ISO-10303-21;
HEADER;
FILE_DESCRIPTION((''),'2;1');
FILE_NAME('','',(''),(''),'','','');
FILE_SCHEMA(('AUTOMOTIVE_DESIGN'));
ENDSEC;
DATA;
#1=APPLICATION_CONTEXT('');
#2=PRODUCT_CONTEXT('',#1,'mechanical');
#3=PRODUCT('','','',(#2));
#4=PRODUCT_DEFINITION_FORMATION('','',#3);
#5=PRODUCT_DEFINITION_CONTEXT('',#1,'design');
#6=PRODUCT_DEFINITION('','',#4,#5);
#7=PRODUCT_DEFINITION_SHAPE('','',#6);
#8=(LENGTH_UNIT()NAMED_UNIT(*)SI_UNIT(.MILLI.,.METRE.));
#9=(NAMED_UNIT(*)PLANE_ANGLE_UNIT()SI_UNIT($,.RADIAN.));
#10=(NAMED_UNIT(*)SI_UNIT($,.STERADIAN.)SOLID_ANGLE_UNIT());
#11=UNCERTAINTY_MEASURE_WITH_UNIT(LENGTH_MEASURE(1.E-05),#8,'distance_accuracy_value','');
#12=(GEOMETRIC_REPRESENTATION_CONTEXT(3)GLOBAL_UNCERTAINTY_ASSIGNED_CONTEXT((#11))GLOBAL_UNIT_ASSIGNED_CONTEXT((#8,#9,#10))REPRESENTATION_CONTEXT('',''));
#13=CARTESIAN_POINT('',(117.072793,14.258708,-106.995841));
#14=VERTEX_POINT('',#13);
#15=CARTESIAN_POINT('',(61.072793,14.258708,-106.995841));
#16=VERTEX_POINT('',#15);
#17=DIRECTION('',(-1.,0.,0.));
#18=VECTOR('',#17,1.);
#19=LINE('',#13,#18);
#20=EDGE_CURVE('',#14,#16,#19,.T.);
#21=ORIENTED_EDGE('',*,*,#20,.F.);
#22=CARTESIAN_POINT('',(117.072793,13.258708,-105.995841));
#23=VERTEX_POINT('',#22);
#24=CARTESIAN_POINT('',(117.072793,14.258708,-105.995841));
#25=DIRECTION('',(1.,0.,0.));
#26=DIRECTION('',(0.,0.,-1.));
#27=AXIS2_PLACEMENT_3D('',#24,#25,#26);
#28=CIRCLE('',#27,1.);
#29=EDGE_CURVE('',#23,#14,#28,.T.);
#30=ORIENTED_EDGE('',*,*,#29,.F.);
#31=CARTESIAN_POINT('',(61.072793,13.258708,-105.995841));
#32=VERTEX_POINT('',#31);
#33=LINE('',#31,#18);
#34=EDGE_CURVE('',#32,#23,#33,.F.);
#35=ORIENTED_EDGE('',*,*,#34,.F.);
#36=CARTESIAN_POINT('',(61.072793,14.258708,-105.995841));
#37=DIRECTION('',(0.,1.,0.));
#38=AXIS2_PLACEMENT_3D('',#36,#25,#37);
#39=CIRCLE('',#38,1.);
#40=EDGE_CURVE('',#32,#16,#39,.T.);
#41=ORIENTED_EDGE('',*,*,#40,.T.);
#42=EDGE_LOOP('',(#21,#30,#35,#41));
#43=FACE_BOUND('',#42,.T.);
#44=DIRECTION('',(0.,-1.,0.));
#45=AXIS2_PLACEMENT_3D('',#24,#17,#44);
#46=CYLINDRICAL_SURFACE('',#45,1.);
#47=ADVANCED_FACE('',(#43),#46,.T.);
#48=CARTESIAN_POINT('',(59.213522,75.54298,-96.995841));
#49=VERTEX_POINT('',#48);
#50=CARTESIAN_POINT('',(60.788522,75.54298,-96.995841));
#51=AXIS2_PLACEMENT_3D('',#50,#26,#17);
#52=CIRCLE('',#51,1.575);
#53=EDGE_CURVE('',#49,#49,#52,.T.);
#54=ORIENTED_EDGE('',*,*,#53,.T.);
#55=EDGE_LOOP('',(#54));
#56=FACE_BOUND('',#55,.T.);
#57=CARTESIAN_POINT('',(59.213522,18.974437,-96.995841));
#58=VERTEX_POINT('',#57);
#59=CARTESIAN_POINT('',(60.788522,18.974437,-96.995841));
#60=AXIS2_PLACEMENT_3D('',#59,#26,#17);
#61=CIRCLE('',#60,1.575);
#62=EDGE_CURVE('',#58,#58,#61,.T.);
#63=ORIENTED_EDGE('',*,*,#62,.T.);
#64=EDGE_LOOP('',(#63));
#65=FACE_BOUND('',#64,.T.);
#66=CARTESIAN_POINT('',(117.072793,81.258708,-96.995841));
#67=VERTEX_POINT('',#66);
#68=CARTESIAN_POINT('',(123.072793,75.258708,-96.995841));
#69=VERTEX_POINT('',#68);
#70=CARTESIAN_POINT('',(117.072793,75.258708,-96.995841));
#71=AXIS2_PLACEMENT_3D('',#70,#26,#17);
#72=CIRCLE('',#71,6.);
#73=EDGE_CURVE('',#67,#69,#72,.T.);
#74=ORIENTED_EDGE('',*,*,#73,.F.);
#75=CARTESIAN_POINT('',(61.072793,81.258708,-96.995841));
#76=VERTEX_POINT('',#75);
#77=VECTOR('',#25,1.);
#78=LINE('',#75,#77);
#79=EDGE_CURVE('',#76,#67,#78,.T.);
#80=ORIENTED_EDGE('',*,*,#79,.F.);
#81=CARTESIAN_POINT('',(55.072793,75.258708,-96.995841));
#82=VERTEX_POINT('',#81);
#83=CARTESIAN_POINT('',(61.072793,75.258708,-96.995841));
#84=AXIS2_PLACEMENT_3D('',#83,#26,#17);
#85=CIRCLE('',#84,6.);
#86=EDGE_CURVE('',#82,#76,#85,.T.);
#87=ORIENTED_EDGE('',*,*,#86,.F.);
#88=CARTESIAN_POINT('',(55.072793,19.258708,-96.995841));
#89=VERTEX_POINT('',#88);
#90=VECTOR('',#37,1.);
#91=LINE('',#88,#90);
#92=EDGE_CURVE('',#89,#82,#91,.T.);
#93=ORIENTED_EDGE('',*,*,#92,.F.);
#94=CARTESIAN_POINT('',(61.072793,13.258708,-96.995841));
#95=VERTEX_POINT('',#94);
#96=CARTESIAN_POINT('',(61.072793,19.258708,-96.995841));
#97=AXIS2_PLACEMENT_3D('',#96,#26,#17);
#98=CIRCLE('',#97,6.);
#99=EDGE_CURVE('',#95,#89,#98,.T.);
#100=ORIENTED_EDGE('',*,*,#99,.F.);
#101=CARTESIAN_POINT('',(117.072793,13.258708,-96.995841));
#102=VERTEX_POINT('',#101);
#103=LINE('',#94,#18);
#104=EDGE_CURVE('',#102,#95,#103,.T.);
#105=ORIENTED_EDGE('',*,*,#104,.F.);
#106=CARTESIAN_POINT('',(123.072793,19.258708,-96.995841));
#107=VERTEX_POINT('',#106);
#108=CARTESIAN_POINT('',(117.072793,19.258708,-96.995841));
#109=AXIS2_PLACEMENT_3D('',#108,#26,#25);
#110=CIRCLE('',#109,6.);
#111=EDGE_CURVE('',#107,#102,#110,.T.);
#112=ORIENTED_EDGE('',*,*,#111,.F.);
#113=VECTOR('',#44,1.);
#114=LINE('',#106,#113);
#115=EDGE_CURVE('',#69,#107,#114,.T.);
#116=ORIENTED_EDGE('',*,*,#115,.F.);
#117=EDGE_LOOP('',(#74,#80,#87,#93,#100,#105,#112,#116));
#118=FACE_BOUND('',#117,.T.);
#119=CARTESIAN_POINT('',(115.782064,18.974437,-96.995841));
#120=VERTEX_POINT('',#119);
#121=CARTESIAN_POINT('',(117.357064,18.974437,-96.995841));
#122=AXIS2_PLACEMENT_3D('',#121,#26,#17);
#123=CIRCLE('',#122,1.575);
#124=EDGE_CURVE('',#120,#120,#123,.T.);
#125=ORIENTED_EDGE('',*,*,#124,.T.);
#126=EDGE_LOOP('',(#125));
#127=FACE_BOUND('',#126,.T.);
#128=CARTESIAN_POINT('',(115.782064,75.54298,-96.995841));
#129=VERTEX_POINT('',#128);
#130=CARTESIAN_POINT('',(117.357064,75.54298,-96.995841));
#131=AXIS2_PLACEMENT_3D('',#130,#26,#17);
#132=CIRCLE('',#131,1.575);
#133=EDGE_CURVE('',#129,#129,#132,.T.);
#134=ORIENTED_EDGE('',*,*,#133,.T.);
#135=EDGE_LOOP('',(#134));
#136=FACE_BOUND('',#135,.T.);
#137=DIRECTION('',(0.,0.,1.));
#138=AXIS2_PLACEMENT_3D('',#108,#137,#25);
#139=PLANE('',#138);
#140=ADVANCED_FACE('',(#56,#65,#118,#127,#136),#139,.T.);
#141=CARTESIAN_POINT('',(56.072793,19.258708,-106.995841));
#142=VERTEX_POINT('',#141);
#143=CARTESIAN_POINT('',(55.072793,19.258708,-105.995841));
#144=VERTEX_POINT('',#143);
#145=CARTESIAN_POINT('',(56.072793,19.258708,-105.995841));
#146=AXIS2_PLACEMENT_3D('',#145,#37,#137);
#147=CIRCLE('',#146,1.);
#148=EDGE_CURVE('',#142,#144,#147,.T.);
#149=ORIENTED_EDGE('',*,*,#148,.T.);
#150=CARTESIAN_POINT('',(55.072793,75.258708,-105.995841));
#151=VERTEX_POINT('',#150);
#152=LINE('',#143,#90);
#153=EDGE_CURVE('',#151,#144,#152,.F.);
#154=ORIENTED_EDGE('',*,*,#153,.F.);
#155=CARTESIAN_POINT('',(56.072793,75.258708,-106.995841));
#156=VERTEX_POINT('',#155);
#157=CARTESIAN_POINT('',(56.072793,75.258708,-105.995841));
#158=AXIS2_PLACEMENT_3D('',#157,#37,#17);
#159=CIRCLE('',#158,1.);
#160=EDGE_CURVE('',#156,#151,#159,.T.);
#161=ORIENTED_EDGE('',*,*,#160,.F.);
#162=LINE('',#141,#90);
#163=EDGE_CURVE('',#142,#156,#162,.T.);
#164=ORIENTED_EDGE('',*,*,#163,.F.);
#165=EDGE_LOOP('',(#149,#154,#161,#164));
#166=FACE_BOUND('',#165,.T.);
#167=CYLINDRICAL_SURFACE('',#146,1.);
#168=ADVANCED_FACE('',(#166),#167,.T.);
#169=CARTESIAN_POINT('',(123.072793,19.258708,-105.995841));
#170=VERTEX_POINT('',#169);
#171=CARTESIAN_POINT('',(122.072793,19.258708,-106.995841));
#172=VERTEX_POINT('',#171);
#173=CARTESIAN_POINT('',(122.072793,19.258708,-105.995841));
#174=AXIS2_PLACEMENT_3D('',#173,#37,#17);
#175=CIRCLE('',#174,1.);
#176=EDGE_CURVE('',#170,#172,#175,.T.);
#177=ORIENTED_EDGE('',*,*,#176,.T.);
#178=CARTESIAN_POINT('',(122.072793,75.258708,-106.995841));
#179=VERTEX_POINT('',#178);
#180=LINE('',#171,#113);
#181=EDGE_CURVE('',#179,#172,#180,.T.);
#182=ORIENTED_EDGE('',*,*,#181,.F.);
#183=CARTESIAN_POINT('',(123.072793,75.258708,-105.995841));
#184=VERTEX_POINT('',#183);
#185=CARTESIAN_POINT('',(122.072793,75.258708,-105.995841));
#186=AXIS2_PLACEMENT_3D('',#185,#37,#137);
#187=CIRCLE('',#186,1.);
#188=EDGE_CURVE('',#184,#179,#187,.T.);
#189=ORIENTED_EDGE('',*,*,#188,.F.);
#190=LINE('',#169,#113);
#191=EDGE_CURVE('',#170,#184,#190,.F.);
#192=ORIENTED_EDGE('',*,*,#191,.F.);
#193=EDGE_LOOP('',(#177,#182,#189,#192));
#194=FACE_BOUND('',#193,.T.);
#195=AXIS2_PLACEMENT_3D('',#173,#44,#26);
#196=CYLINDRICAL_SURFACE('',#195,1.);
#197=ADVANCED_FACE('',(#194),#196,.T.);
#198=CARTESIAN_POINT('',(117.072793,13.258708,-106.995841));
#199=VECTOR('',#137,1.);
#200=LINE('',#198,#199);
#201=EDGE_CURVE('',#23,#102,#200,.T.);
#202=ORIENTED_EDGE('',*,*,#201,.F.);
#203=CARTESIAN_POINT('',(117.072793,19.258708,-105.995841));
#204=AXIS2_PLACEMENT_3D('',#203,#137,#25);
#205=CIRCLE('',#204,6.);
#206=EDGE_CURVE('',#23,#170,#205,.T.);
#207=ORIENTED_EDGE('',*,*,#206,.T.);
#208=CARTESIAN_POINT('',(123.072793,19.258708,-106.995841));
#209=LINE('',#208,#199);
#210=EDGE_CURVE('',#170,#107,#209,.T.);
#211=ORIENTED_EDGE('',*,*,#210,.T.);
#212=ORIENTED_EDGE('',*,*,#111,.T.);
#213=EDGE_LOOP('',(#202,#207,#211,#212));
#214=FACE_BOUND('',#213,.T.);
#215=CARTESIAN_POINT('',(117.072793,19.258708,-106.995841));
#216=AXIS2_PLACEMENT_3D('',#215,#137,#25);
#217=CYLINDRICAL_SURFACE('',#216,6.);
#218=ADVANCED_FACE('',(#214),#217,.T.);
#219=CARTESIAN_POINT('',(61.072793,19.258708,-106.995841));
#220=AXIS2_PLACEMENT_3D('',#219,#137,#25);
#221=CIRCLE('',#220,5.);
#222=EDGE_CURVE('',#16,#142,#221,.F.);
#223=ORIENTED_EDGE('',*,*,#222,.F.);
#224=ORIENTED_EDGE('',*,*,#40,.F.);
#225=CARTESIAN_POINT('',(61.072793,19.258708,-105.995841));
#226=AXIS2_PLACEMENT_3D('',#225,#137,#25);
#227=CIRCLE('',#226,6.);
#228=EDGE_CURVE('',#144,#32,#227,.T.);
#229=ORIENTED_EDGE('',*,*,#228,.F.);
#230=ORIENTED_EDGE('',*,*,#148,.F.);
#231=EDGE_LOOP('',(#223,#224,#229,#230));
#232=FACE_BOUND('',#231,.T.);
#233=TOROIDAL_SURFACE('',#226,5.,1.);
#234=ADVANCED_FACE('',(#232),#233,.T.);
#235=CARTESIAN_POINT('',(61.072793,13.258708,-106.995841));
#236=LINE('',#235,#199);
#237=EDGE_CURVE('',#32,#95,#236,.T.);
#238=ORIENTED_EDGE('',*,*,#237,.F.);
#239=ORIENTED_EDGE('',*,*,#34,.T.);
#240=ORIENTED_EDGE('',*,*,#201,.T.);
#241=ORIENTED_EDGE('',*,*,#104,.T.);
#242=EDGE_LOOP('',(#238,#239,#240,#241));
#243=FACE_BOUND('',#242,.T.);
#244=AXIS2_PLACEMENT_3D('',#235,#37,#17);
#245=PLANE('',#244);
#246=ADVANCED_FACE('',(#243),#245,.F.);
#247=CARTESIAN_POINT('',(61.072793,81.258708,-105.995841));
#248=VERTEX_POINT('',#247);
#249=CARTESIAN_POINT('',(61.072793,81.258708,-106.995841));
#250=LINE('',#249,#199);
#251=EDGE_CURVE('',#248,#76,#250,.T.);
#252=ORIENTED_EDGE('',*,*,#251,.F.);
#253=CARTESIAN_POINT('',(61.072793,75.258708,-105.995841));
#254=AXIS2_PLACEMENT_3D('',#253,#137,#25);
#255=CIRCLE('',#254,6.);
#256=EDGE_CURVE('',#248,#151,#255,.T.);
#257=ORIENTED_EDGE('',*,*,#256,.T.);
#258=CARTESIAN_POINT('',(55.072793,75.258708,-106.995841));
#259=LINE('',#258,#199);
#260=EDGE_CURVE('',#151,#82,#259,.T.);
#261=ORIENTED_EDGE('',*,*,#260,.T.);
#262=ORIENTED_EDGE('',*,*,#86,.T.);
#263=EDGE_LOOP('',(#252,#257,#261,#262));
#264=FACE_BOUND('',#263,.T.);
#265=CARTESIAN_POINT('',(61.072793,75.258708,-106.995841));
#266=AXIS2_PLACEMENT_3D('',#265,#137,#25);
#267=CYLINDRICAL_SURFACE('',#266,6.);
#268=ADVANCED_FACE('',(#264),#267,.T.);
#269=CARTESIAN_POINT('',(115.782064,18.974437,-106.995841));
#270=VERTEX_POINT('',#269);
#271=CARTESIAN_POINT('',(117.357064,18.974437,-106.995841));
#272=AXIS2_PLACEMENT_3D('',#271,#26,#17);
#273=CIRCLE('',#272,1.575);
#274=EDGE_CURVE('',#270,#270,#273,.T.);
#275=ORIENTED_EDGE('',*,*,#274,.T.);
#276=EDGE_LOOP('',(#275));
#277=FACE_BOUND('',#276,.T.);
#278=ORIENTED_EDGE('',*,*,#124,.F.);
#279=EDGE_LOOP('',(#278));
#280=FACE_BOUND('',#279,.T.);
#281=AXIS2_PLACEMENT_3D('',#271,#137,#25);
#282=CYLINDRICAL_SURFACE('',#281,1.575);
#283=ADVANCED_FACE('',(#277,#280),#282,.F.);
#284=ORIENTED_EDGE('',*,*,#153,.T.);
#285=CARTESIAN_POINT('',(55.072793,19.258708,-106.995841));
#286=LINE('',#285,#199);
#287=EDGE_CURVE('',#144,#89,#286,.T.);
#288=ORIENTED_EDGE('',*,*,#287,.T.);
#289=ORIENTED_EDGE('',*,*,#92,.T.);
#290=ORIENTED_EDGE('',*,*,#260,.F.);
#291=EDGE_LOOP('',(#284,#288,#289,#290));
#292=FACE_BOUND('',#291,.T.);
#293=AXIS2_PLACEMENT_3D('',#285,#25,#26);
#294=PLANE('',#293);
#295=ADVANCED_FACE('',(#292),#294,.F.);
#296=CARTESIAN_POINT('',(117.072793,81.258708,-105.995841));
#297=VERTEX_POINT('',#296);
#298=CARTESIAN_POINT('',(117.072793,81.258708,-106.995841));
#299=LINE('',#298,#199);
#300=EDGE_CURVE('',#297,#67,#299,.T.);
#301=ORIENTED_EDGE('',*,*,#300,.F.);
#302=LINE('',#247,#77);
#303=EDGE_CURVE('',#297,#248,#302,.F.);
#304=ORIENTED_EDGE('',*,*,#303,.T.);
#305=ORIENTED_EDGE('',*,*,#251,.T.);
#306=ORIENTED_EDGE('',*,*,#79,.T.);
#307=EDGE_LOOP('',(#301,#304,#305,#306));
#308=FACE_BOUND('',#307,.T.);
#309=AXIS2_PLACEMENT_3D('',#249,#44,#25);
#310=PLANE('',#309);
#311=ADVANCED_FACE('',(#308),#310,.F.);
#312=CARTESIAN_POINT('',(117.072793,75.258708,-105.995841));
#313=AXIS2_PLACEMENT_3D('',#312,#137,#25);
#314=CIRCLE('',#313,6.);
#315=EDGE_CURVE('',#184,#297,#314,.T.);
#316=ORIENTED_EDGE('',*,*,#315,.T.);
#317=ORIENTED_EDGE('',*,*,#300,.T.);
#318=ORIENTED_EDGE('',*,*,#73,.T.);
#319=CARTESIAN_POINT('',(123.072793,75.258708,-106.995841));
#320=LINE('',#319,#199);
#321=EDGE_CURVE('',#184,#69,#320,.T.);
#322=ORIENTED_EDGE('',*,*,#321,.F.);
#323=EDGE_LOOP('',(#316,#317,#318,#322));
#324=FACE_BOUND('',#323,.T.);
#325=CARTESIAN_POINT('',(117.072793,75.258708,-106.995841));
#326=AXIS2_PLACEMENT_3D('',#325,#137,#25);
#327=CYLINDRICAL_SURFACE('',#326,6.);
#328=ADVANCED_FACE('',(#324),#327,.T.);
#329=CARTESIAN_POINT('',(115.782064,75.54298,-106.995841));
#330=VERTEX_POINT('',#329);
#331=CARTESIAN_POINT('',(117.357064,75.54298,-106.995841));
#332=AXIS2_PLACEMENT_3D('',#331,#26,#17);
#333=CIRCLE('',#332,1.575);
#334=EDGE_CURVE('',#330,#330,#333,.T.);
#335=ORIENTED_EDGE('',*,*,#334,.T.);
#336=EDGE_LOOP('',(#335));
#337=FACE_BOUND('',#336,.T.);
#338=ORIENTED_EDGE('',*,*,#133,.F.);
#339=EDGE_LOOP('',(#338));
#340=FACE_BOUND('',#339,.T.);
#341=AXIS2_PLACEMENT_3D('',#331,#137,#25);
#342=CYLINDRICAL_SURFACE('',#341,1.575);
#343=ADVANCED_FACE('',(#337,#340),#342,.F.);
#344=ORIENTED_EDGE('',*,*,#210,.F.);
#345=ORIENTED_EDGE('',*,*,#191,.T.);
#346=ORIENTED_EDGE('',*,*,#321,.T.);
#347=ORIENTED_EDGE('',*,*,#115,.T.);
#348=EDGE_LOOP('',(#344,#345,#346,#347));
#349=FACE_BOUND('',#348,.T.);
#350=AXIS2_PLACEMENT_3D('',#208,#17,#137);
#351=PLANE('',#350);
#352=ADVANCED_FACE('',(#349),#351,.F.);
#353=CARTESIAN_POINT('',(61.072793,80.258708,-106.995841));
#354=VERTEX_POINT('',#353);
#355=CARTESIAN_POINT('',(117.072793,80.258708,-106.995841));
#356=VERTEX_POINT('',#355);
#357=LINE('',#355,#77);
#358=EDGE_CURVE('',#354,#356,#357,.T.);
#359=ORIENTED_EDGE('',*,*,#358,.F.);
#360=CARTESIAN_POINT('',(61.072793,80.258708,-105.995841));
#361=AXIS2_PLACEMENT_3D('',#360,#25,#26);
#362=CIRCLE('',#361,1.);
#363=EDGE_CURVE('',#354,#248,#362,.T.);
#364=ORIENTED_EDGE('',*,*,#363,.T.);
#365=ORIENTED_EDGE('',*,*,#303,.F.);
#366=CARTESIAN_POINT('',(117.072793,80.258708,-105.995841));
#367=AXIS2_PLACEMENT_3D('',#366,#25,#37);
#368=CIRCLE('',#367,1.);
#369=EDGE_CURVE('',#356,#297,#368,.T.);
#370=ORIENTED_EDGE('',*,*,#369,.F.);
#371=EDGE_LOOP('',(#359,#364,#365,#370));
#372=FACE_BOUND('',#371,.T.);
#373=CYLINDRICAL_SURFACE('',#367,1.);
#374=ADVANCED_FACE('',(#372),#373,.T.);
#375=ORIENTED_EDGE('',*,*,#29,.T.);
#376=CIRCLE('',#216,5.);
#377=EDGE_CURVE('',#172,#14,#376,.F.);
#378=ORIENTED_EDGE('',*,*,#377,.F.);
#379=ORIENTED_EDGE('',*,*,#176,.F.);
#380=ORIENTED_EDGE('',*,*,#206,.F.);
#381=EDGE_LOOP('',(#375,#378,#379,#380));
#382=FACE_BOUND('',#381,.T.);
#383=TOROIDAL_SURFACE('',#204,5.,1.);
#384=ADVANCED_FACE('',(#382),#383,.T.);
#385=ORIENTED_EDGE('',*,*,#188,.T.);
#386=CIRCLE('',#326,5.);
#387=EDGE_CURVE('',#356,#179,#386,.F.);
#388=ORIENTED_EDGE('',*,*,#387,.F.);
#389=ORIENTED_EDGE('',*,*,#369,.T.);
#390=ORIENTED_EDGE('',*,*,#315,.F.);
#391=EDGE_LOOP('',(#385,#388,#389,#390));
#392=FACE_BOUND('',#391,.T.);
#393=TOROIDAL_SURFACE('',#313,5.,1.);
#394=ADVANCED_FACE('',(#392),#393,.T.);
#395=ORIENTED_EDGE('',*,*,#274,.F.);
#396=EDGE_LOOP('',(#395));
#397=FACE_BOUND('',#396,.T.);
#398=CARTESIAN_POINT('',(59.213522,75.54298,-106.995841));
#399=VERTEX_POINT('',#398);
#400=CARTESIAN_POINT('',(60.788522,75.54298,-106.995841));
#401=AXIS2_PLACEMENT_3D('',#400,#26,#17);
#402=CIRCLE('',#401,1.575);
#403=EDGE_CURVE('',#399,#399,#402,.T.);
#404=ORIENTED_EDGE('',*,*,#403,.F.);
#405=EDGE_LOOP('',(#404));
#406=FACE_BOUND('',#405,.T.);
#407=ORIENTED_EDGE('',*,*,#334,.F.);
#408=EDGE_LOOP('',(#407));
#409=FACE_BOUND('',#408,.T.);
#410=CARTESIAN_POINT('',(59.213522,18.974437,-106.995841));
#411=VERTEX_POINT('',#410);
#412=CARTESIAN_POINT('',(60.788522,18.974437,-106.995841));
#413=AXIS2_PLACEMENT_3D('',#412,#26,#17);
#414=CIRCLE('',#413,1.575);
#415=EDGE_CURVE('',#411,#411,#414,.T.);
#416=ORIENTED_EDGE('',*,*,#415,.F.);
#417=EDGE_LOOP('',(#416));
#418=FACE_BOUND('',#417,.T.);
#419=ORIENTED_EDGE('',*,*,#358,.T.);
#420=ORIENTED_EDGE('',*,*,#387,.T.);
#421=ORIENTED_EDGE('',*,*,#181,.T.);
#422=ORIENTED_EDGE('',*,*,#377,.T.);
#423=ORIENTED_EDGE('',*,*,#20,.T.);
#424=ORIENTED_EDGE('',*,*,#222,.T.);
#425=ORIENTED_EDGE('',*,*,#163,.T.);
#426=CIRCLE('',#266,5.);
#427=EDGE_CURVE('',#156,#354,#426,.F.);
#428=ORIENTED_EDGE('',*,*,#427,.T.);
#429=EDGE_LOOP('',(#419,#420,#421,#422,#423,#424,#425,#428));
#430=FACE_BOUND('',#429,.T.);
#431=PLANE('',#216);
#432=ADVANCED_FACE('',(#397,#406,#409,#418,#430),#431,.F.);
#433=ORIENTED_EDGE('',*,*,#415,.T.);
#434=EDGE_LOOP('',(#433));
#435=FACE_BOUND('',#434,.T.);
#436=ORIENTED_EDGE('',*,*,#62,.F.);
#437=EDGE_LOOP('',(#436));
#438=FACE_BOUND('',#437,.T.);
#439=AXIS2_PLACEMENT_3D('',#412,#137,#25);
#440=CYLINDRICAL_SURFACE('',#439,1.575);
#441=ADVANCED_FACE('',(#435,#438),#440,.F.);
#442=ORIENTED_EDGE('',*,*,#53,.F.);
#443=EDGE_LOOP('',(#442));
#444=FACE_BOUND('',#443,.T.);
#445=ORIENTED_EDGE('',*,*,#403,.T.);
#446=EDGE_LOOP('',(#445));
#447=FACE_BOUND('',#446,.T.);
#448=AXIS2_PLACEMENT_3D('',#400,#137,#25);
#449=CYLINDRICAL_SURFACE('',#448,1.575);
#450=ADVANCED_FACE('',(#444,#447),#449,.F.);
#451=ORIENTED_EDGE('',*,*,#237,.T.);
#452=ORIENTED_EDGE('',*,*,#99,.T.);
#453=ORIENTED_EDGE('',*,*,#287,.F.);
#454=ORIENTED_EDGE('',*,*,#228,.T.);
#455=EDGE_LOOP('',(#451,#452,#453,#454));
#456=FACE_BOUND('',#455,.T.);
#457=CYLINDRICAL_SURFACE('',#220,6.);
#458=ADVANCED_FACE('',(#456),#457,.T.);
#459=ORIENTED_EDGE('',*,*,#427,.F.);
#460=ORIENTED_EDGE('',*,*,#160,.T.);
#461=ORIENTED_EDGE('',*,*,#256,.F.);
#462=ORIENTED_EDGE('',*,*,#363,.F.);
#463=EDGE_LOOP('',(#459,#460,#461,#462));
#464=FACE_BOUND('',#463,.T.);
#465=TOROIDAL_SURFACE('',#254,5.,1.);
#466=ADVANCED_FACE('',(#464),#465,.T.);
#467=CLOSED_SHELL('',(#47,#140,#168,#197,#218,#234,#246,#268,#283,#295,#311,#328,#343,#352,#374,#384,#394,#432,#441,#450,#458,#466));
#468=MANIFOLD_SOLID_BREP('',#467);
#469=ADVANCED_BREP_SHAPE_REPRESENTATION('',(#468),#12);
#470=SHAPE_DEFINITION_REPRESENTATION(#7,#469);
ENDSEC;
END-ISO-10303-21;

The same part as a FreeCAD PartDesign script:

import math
import FreeCAD as App
import Part
import Sketcher

V = App.Vector
Q = App.Units.Quantity


def edges_at(feature, points):
    """Names of the edges that pass closest to the given points."""
    edges = feature.Shape.Edges
    near = lambda p: min(range(len(edges)), key=lambda i: edges[i].distToShape(Part.Vertex(*p))[0])
    return sorted({f"Edge{near(p) + 1}" for p in points})

doc = App.newDocument("Part")
body = doc.addObject("PartDesign::Body", "Body")

sketch1 = doc.addObject("Sketcher::SketchObject", "Sketch")
body.addObject(sketch1)
sketch1.AttachmentSupport = (doc.XY_Plane, [""])
sketch1.MapMode = "FlatFace"
sketch1.AttachmentOffset = App.Placement(V(0, 0, -96.995841), App.Rotation())
sketch1.addGeometry([
    Part.LineSegment(V(117.072793, 13.258708, 0), V(61.072793, 13.258708, 0)),
    Part.ArcOfCircle(Part.Circle(V(61.072793, 19.258708, 0), V(0, 0, 1), 6), math.radians(180), math.radians(270)),
    Part.LineSegment(V(55.072793, 19.258708, 0), V(55.072793, 75.258708, 0)),
    Part.ArcOfCircle(Part.Circle(V(61.072793, 75.258708, 0), V(0, 0, 1), 6), math.radians(90), math.radians(180)),
    Part.LineSegment(V(61.072793, 81.258708, 0), V(117.072793, 81.258708, 0)),
    Part.ArcOfCircle(Part.Circle(V(117.072793, 75.258708, 0), V(0, 0, 1), 6), math.radians(0), math.radians(90)),
    Part.LineSegment(V(123.072793, 75.258708, 0), V(123.072793, 19.258708, 0)),
    Part.ArcOfCircle(Part.Circle(V(117.072793, 19.258708, 0), V(0, 0, 1), 6), math.radians(-90), math.radians(0)),
    Part.Circle(V(60.788522, 18.974437, 0), V(0, 0, 1), 1.575),
    Part.Circle(V(117.357064, 18.974437, 0), V(0, 0, 1), 1.575),
    Part.Circle(V(60.788522, 75.54298, 0), V(0, 0, 1), 1.575),
    Part.Circle(V(117.357064, 75.54298, 0), V(0, 0, 1), 1.575),
], False)
sketch1.addConstraint([
    Sketcher.Constraint("Tangent", 0, 2, 1, 2),
    Sketcher.Constraint("Tangent", 1, 1, 2, 1),
    Sketcher.Constraint("Tangent", 2, 2, 3, 2),
    Sketcher.Constraint("Tangent", 3, 1, 4, 1),
    Sketcher.Constraint("Tangent", 4, 2, 5, 2),
    Sketcher.Constraint("Tangent", 5, 1, 6, 1),
    Sketcher.Constraint("Tangent", 6, 2, 7, 2),
    Sketcher.Constraint("Tangent", 7, 1, 0, 1),
    Sketcher.Constraint("Horizontal", 0),
    Sketcher.Constraint("Vertical", 2),
    Sketcher.Constraint("Horizontal", 4),
    Sketcher.Constraint("Vertical", 6),
    Sketcher.Constraint("Equal", 1, 3),
    Sketcher.Constraint("Equal", 3, 5),
    Sketcher.Constraint("Equal", 5, 7),
    Sketcher.Constraint("Equal", 8, 9),
    Sketcher.Constraint("Equal", 9, 10),
    Sketcher.Constraint("Equal", 10, 11),
    Sketcher.Constraint("Horizontal", 8, 3, 9, 3),
    Sketcher.Constraint("Horizontal", 10, 3, 11, 3),
    Sketcher.Constraint("Vertical", 8, 3, 10, 3),
    Sketcher.Constraint("Vertical", 9, 3, 11, 3),
    Sketcher.Constraint("Equal", 4, 2),
    Sketcher.Constraint("Radius", 1, Q("6 mm")),
    Sketcher.Constraint("Diameter", 8, Q("3.15 mm")),
    Sketcher.Constraint("DistanceX", 0, 2, 0, 1, Q("56 mm")),
    Sketcher.Constraint("DistanceY", -1, 1, 1, 3, Q("19.258708 mm")),
    Sketcher.Constraint("DistanceX", -1, 1, 8, 3, Q("60.788522 mm")),
    Sketcher.Constraint("DistanceY", -1, 1, 10, 3, Q("75.54298 mm")),
    Sketcher.Constraint("DistanceX", 8, 3, 1, 3, Q("0.284271 mm")),
    Sketcher.Constraint("DistanceY", 8, 3, 1, 3, Q("0.284271 mm")),
    Sketcher.Constraint("DistanceX", 7, 3, 9, 3, Q("0.284271 mm")),
])
pad1 = doc.addObject("PartDesign::Pad", "Pad")
body.addObject(pad1)
pad1.Profile = sketch1
pad1.Length = 10
pad1.Reversed = True
doc.recompute()

fillet = doc.addObject("PartDesign::Fillet", "Fillet")
body.addObject(fillet)
fillet.Base = (pad1, edges_at(pad1, [
    (56.83, 15.016, -106.996),
    (55.073, 47.259, -106.996),
    (56.83, 79.501, -106.996),
    (89.073, 81.259, -106.996),
    (121.315, 79.501, -106.996),
    (123.073, 47.259, -106.996),
    (121.315, 15.016, -106.996),
    (89.073, 13.259, -106.996),
]))
fillet.Radius = 1

doc.recompute()
